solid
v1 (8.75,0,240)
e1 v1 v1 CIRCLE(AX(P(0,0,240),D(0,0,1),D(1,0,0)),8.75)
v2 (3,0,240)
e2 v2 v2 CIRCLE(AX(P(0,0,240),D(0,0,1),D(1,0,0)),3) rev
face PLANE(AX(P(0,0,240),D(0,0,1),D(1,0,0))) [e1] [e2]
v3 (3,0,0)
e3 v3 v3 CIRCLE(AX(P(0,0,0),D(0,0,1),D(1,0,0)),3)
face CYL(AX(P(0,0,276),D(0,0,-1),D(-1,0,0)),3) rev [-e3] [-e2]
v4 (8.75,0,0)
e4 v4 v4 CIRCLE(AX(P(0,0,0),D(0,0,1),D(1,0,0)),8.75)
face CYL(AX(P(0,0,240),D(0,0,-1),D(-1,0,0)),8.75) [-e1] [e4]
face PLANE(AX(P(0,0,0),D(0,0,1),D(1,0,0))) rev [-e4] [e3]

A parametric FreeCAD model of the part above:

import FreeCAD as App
import Part
import Sketcher

V = App.Vector
Q = App.Units.Quantity

doc = App.newDocument("Part")
body = doc.addObject("PartDesign::Body", "Body")

# Sketch on XY plane
sketch1 = body.newObject("Sketcher::SketchObject", "Sketch")
sketch1.AttachmentSupport = (doc.getObject("XY_Plane"), [""])
sketch1.MapMode = "FlatFace"
sketch1.addGeometry(Part.Circle(V(0, 0, 0), V(0, 0, 1), 8.75), False)
sketch1.addConstraint(Sketcher.Constraint("Coincident", 0, 3, -1, 1))
sketch1.addConstraint(Sketcher.Constraint("Diameter", 0, Q("17.5 mm")))
pad1 = body.newObject("PartDesign::Pad", "Pad")
pad1.Profile = sketch1
pad1.Length = 240

# Sketch on XY plane
sketch2 = body.newObject("Sketcher::SketchObject", "Sketch001")
sketch2.AttachmentSupport = (doc.getObject("XY_Plane"), [""])
sketch2.MapMode = "FlatFace"
sketch2.addGeometry(Part.Circle(V(0, 0, 0), V(0, 0, 1), 3), False)
sketch2.addConstraint(Sketcher.Constraint("Coincident", 0, 3, -1, 1))
sketch2.addConstraint(Sketcher.Constraint("Diameter", 0, Q("6 mm")))
pocket1 = body.newObject("PartDesign::Pocket", "Pocket")
pocket1.Profile = sketch2
pocket1.Length = 276
pocket1.Reversed = True

doc.recompute()
